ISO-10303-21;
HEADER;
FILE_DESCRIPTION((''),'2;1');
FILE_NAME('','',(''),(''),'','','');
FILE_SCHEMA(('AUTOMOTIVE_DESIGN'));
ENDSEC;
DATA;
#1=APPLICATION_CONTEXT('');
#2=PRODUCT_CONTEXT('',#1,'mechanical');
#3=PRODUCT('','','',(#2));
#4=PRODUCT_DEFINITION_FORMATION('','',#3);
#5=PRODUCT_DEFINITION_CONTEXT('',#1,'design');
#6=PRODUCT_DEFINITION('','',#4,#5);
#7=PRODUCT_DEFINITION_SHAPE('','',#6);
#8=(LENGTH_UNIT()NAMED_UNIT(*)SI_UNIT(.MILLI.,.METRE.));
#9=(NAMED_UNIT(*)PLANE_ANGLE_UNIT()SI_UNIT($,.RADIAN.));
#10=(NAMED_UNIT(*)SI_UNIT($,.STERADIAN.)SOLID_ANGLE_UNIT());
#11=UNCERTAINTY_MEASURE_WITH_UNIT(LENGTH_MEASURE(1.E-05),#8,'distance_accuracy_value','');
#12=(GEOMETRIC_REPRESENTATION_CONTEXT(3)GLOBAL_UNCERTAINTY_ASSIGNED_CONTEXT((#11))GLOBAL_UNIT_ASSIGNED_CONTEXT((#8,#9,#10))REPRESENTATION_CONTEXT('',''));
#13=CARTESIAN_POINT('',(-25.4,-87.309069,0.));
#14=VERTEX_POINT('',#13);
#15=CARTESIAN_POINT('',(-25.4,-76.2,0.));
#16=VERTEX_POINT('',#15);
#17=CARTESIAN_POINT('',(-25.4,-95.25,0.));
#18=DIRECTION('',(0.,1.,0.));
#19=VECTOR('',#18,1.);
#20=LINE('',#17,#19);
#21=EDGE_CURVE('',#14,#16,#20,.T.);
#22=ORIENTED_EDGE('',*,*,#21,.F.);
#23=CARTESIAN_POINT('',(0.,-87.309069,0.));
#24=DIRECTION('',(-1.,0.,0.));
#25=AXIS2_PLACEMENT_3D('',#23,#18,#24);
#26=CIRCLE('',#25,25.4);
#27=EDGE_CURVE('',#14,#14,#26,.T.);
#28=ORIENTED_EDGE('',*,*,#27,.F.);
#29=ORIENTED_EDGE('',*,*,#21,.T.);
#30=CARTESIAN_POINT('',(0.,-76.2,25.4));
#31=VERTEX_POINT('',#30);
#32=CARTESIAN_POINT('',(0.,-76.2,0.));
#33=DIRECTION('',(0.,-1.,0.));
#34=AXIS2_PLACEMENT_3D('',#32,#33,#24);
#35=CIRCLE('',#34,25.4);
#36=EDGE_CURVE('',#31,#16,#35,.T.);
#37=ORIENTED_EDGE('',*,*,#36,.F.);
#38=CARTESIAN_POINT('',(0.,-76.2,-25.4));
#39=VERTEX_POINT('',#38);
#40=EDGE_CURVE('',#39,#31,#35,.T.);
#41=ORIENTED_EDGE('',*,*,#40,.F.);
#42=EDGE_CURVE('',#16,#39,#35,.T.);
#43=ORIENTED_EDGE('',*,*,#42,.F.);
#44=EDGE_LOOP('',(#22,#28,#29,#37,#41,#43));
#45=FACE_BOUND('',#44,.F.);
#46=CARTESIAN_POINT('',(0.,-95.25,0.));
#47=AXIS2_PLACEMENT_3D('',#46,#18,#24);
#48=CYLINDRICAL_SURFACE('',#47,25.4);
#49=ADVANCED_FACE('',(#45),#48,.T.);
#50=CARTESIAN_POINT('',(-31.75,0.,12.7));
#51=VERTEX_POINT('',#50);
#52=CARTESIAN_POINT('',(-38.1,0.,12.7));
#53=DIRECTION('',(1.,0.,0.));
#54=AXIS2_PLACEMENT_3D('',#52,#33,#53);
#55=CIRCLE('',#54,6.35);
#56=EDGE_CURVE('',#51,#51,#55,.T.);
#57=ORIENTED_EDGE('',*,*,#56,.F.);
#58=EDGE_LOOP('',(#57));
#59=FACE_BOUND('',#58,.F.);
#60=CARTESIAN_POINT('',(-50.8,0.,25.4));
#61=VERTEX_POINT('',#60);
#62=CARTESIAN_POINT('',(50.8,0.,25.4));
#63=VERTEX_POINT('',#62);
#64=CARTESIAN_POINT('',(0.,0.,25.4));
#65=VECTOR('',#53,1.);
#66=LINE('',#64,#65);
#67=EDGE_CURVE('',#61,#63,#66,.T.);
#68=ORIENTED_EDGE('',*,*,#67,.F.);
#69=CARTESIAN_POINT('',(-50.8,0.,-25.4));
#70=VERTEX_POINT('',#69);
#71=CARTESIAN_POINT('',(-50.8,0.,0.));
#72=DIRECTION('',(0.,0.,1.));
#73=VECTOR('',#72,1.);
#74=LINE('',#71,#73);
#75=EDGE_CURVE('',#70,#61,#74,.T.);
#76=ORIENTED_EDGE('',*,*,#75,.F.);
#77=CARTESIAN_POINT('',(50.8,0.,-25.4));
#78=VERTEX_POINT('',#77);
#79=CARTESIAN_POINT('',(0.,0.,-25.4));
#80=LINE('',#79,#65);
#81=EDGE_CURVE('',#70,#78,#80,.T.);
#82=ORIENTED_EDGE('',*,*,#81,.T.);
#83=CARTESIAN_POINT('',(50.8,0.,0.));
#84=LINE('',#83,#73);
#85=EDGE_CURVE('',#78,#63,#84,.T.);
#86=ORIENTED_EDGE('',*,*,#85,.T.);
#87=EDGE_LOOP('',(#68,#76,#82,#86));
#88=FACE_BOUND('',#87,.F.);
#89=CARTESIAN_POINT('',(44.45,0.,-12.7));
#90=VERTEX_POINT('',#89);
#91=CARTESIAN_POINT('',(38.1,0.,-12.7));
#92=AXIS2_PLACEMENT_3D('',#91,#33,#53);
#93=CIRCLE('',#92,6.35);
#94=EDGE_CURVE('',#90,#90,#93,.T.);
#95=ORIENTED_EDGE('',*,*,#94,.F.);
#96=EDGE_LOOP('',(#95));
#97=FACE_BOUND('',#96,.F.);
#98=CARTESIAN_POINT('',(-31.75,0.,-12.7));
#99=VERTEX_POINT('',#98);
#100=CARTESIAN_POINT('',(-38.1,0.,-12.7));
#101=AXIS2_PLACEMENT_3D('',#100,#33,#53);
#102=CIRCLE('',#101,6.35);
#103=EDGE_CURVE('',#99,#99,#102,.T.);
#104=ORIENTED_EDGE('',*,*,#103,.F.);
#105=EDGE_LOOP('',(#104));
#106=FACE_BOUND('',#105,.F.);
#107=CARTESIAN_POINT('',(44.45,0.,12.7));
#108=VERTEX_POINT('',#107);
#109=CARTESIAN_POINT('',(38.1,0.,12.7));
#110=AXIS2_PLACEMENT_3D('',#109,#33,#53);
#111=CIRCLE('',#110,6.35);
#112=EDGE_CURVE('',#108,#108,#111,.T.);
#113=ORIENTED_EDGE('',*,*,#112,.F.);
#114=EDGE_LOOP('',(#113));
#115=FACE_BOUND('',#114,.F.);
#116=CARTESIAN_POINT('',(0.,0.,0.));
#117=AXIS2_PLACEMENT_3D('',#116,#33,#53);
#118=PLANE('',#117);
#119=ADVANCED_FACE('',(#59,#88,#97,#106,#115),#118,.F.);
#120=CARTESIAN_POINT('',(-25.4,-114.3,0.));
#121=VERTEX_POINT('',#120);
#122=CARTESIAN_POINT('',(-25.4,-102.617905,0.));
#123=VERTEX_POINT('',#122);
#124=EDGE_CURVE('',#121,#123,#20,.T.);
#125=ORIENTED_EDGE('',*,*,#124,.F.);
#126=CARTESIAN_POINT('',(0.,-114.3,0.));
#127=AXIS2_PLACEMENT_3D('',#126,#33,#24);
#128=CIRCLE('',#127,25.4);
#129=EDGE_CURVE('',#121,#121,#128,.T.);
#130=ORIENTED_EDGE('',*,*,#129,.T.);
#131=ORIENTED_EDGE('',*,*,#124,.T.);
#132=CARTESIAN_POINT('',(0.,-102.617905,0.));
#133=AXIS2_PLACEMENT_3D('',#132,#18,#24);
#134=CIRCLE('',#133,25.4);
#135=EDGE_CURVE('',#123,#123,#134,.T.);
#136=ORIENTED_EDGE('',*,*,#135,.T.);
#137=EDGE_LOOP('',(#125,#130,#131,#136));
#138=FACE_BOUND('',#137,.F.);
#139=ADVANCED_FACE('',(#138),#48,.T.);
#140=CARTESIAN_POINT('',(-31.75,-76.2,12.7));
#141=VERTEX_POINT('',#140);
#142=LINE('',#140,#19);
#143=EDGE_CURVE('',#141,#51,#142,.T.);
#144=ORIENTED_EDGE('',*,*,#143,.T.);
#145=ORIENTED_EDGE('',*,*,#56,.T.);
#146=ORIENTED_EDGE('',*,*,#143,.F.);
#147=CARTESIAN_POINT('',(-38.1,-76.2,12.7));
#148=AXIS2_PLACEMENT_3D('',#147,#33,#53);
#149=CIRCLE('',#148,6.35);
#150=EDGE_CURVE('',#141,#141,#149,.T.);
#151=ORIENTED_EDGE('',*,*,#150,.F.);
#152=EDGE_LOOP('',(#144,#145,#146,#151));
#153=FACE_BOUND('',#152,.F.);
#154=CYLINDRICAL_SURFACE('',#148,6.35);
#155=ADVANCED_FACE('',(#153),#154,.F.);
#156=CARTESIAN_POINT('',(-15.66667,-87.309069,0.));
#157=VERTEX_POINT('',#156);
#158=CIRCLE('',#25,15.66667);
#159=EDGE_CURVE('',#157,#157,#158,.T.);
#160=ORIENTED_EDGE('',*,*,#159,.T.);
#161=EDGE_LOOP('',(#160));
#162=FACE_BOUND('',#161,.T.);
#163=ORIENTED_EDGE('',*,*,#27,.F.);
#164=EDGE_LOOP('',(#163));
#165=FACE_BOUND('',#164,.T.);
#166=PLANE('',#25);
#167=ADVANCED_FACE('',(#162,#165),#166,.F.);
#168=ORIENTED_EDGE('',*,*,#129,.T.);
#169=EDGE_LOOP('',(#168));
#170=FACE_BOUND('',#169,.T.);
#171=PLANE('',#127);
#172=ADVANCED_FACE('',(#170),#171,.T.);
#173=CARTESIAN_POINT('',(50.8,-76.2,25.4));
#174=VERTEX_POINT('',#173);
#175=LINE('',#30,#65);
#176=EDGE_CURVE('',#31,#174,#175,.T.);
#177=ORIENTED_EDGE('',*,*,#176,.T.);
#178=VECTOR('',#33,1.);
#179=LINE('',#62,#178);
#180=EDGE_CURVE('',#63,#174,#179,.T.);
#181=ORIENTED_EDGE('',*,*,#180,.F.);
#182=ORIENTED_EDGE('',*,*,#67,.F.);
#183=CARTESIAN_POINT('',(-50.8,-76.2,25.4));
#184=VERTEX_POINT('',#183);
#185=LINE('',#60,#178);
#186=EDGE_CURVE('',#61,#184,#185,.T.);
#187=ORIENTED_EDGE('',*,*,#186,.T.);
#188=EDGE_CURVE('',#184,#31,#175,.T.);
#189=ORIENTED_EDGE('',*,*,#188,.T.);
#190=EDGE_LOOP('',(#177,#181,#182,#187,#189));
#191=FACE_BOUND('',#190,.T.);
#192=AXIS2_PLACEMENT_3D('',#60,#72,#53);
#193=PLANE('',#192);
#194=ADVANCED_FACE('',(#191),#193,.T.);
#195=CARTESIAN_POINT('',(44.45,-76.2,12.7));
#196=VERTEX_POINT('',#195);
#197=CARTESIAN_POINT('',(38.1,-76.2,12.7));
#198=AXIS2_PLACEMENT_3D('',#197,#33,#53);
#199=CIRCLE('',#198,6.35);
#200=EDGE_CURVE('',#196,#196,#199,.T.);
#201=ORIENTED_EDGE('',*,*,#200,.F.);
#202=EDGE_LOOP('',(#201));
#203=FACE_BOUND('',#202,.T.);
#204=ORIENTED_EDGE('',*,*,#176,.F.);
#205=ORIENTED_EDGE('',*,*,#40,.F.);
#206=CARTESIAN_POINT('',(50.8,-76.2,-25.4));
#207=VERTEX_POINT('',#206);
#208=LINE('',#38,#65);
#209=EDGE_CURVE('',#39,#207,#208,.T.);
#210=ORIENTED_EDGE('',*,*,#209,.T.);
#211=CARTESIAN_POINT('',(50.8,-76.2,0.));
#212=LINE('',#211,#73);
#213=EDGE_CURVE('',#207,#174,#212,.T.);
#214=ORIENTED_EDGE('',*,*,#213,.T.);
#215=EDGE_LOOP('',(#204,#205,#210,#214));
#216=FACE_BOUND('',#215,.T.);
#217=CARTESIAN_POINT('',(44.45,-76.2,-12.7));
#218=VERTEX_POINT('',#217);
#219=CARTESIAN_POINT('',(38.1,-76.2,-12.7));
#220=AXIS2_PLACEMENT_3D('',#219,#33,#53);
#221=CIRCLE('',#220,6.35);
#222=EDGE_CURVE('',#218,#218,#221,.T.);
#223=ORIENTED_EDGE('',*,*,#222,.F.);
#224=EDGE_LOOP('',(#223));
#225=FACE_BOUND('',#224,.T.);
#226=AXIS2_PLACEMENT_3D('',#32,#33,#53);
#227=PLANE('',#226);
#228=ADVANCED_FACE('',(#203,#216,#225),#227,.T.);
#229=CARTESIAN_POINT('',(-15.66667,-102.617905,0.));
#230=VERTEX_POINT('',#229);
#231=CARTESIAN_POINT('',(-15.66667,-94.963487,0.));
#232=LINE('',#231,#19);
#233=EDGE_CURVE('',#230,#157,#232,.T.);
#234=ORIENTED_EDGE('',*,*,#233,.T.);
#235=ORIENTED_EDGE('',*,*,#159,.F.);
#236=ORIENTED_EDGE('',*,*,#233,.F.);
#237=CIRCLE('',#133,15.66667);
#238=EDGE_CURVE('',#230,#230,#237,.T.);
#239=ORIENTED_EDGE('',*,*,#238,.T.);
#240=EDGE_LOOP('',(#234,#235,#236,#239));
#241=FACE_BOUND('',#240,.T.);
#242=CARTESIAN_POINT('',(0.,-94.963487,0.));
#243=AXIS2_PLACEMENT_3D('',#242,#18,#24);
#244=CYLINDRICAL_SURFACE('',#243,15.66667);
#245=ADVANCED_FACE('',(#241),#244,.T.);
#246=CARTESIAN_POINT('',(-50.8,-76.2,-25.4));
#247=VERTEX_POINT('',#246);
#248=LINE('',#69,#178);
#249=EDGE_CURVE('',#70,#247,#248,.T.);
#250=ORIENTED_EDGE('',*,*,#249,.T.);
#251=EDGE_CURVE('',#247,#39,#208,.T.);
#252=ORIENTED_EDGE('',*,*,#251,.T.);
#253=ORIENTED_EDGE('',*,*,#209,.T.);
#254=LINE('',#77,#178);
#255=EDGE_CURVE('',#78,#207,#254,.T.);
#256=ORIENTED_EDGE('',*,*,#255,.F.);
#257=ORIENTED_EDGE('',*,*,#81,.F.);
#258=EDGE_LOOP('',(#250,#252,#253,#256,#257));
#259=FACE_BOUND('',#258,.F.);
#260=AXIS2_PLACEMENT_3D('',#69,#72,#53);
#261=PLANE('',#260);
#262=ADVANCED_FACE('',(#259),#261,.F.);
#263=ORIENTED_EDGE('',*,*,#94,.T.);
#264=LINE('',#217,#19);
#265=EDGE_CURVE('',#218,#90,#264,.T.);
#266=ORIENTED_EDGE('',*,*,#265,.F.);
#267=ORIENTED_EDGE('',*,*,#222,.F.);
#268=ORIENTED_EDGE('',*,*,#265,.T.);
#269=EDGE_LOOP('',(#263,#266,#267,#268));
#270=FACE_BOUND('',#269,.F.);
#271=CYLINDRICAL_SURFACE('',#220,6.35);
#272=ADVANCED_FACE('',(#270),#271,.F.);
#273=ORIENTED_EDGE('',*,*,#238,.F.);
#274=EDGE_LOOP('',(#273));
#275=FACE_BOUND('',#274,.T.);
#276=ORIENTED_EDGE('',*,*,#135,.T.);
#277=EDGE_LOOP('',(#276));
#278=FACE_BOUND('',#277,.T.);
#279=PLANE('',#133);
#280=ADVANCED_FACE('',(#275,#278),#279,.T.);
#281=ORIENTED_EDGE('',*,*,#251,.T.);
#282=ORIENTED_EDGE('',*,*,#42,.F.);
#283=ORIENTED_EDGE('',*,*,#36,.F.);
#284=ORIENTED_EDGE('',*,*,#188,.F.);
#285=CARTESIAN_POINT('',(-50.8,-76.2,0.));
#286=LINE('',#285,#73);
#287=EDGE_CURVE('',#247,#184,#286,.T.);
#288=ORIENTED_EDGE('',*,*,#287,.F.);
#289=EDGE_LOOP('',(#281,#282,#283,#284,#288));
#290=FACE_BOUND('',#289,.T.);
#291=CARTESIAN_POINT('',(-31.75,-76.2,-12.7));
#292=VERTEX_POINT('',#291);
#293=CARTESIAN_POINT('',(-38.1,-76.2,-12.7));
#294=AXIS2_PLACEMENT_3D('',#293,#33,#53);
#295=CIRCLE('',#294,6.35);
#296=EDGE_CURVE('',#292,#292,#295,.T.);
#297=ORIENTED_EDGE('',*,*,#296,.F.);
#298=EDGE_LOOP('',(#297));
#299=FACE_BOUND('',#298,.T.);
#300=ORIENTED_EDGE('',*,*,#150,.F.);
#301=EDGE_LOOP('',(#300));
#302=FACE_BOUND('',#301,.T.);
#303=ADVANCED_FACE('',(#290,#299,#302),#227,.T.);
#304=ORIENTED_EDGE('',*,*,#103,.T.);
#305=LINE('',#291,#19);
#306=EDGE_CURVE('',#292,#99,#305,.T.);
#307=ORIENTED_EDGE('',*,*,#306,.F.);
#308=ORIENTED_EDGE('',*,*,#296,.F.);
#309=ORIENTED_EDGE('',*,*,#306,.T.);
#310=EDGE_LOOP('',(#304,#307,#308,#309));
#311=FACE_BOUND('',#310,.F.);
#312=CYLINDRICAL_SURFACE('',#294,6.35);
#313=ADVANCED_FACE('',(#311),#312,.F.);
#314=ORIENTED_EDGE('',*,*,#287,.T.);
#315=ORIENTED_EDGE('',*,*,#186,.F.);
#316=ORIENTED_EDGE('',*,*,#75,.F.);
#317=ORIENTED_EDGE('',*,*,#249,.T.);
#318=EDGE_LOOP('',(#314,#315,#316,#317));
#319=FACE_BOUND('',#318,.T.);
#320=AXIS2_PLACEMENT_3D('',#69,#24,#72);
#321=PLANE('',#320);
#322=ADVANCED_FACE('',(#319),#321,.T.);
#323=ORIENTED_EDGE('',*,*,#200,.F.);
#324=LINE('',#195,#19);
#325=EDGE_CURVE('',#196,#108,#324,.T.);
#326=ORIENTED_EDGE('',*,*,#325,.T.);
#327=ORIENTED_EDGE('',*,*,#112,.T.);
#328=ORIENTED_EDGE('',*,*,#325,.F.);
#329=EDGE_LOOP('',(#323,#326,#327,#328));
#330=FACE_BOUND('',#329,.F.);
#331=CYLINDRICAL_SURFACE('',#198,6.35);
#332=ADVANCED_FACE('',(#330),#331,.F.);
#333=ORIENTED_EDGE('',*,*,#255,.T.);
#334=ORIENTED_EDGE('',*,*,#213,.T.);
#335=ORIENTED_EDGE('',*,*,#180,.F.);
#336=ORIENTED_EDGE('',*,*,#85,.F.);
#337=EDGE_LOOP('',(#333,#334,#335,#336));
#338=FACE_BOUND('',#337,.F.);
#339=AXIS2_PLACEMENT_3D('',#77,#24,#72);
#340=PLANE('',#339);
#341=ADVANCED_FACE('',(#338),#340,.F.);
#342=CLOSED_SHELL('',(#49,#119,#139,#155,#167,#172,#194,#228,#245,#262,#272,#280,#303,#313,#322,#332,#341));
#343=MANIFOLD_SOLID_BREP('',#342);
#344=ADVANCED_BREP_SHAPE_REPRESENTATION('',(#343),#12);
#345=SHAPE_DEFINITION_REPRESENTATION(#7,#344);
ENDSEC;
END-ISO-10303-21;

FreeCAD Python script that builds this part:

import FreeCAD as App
import Part
import Sketcher

V = App.Vector
Q = App.Units.Quantity


def add_polygon(sketch, points):
    """Adds a closed chain of lines whose ends are joined by coincident constraints."""
    first, n = sketch.GeometryCount, len(points)
    for a, b in zip(points, points[1:] + points[:1]):
        sketch.addGeometry(Part.LineSegment(App.Vector(*a, 0), App.Vector(*b, 0)), False)
    for i in range(n):
        sketch.addConstraint(Sketcher.Constraint("Coincident", first + i, 2, first + (i + 1) % n, 1))

doc = App.newDocument("Part")
body = doc.addObject("PartDesign::Body", "Body")

sketch1 = body.newObject("Sketcher::SketchObject", "Sketch")
sketch1.AttachmentSupport = (doc.getObject("XZ_Plane"), [""])
sketch1.MapMode = "FlatFace"
add_polygon(sketch1, [(-50.8, 25.4), (-50.8, -25.4), (50.8, -25.4), (50.8, 25.4)])
sketch1.addConstraint(Sketcher.Constraint("Vertical", 0))
sketch1.addConstraint(Sketcher.Constraint("Horizontal", 1))
sketch1.addConstraint(Sketcher.Constraint("Vertical", 2))
sketch1.addConstraint(Sketcher.Constraint("Horizontal", 3))
sketch1.addConstraint(Sketcher.Constraint("Symmetric", 0, 2, 2, 2, -1, 1))
sketch1.addConstraint(Sketcher.Constraint("DistanceX", 1, 1, 1, 2, Q("4 in")))
sketch1.addConstraint(Sketcher.Constraint("DistanceY", 0, 2, 0, 1, Q("2 in")))
pad1 = body.newObject("PartDesign::Pad", "Pad")
pad1.Profile = sketch1
pad1.Length = Q("3 in")

sketch2 = body.newObject("Sketcher::SketchObject", "Sketch001")
sketch2.AttachmentSupport = (doc.getObject("XZ_Plane"), [""])
sketch2.MapMode = "FlatFace"
sketch2.AttachmentOffset = App.Placement(V(0, 0, 3 * 25.4), App.Rotation())
sketch2.addGeometry(Part.Circle(V(-38.1, 12.7, 0), V(0, 0, 1), 6.35), False)
sketch2.addGeometry(Part.Circle(V(-38.1, -12.7, 0), V(0, 0, 1), 6.35), False)
sketch2.addGeometry(Part.Circle(V(38.1, 12.7, 0), V(0, 0, 1), 6.35), False)
sketch2.addGeometry(Part.Circle(V(38.1, -12.7, 0), V(0, 0, 1), 6.35), False)
sketch2.addConstraint(Sketcher.Constraint("Equal", 0, 1))
sketch2.addConstraint(Sketcher.Constraint("Equal", 1, 2))
sketch2.addConstraint(Sketcher.Constraint("Equal", 2, 3))
sketch2.addConstraint(Sketcher.Constraint("Symmetric", 1, 3, 2, 3, -1, 1))
sketch2.addConstraint(Sketcher.Constraint("Symmetric", 0, 3, 3, 3, -1, 1))
sketch2.addConstraint(Sketcher.Constraint("Symmetric", 0, 3, 2, 3, -2))
sketch2.addConstraint(Sketcher.Constraint("Diameter", 0, Q("0.5 in")))
sketch2.addConstraint(Sketcher.Constraint("DistanceY", 1, 3, 0, 3, Q("1 in")))
sketch2.addConstraint(Sketcher.Constraint("DistanceX", 0, 3, 2, 3, Q("3 in")))
pocket1 = body.newObject("PartDesign::Pocket", "Pocket")
pocket1.Profile = sketch2
pocket1.Type = "ThroughAll"

sketch3 = body.newObject("Sketcher::SketchObject", "Sketch002")
sketch3.AttachmentSupport = (doc.getObject("XY_Plane"), [""])
sketch3.MapMode = "FlatFace"
add_polygon(sketch3, [(-25.4, -76.2), (-25.4, -114.3), (0, -114.3), (0, -76.2)])
sketch3.addConstraint(Sketcher.Constraint("Vertical", 0))
sketch3.addConstraint(Sketcher.Constraint("Horizontal", 1))
sketch3.addConstraint(Sketcher.Constraint("Vertical", 2))
sketch3.addConstraint(Sketcher.Constraint("Horizontal", 3))
sketch3.addConstraint(Sketcher.Constraint("PointOnObject", 1, 2, -2))
sketch3.addConstraint(Sketcher.Constraint("DistanceX", 1, 1, 1, 2, Q("1 in")))
sketch3.addConstraint(Sketcher.Constraint("DistanceY", 0, 2, 0, 1, Q("1.5 in")))
sketch3.addConstraint(Sketcher.Constraint("DistanceY", 2, 2, -1, 1, Q("3 in")))
revolution = body.newObject("PartDesign::Revolution", "Revolution")
revolution.Profile = sketch3
revolution.ReferenceAxis = (sketch3, ["V_Axis"])
revolution.Angle = 360

sketch4 = body.newObject("Sketcher::SketchObject", "Sketch003")
sketch4.AttachmentSupport = (doc.getObject("XY_Plane"), [""])
sketch4.MapMode = "FlatFace"
add_polygon(sketch4, [(-25.505277, -87.309069), (-25.505277, -102.617905), (-15.66667, -102.617905), (-15.66667, -87.309069)])
sketch4.addConstraint(Sketcher.Constraint("Vertical", 0))
sketch4.addConstraint(Sketcher.Constraint("Horizontal", 1))
sketch4.addConstraint(Sketcher.Constraint("Vertical", 2))
sketch4.addConstraint(Sketcher.Constraint("Horizontal", 3))
sketch4.addConstraint(Sketcher.Constraint("DistanceX", 1, 1, 1, 2, Q("9.838607 mm")))
sketch4.addConstraint(Sketcher.Constraint("DistanceY", 0, 2, 0, 1, Q("15.308836 mm")))
sketch4.addConstraint(Sketcher.Constraint("DistanceX", 1, 2, -1, 1, Q("15.66667 mm")))
sketch4.addConstraint(Sketcher.Constraint("DistanceY", 2, 2, -1, 1, Q("87.309069 mm")))
groove = body.newObject("PartDesign::Groove", "Groove")
groove.Profile = sketch4
groove.ReferenceAxis = (sketch4, ["V_Axis"])
groove.Angle = 360

doc.recompute()
